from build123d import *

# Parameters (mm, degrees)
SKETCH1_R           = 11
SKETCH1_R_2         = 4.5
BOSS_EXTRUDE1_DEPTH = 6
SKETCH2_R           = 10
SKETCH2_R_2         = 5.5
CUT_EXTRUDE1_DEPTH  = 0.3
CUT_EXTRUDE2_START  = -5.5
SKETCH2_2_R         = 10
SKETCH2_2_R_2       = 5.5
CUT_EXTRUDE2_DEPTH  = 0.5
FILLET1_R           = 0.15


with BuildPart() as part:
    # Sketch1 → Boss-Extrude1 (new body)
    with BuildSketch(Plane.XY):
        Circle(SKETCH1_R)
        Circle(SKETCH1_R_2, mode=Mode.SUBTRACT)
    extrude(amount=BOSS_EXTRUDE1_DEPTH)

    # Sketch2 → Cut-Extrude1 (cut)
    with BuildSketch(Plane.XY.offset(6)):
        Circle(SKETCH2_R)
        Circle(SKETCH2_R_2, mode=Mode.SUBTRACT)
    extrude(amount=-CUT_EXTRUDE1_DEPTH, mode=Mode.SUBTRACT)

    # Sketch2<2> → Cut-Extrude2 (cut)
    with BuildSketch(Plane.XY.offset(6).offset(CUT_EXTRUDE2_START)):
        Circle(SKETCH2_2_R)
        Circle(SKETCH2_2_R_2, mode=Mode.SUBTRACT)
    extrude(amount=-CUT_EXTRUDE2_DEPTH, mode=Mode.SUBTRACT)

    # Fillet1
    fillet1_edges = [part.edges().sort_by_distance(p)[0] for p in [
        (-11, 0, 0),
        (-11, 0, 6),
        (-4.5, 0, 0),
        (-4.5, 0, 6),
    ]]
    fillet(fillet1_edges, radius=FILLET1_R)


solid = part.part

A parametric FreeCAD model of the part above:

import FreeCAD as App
import Part
import Sketcher
from FreeCAD import Vector


def edges_at(feature, points):
    """Names of the edges that pass closest to the given points."""
    edges = feature.Shape.Edges
    near = lambda p: min(range(len(edges)), key=lambda i: edges[i].distToShape(Part.Vertex(*p))[0])
    return sorted({f"Edge{near(p) + 1}" for p in points})

doc = App.newDocument("Part")
body = doc.addObject("PartDesign::Body", "Body")

sketch1 = body.newObject("Sketcher::SketchObject", "Sketch")
sketch1.AttachmentSupport = (doc.getObject("XY_Plane"), [""])
sketch1.MapMode = "FlatFace"
sketch1.addGeometry(Part.Circle(Vector(0, 0, 0), Vector(0, 0, 1), 11), False)
sketch1.addGeometry(Part.Circle(Vector(0, 0, 0), Vector(0, 0, 1), 4.5), False)
sketch1.addConstraint(Sketcher.Constraint("Coincident", 0, 3, -1, 1))
sketch1.addConstraint(Sketcher.Constraint("Coincident", 1, 3, -1, 1))
sketch1.addConstraint(Sketcher.Constraint("Diameter", 0, 22.0))
sketch1.addConstraint(Sketcher.Constraint("Diameter", 1, 9.0))
pad1 = body.newObject("PartDesign::Pad", "Pad")
pad1.Profile = sketch1
pad1.Length = 6

sketch2 = body.newObject("Sketcher::SketchObject", "Sketch001")
sketch2.AttachmentSupport = (doc.getObject("XY_Plane"), [""])
sketch2.MapMode = "FlatFace"
sketch2.AttachmentOffset = App.Placement(Vector(0, 0, 6), App.Rotation())
sketch2.addGeometry(Part.Circle(Vector(0, 0, 0), Vector(0, 0, 1), 10), False)
sketch2.addGeometry(Part.Circle(Vector(0, 0, 0), Vector(0, 0, 1), 5.5), False)
sketch2.addConstraint(Sketcher.Constraint("Coincident", 0, 3, -1, 1))
sketch2.addConstraint(Sketcher.Constraint("Coincident", 1, 3, -1, 1))
sketch2.addConstraint(Sketcher.Constraint("Diameter", 0, 20.0))
sketch2.addConstraint(Sketcher.Constraint("Diameter", 1, 11.0))
pocket1 = body.newObject("PartDesign::Pocket", "Pocket")
pocket1.Profile = sketch2
pocket1.Length = 0.3

sketch3 = body.newObject("Sketcher::SketchObject", "Sketch002")
sketch3.AttachmentSupport = (doc.getObject("XY_Plane"), [""])
sketch3.MapMode = "FlatFace"
sketch3.AttachmentOffset = App.Placement(Vector(0, 0, 0.5), App.Rotation())
sketch3.addGeometry(Part.Circle(Vector(0, 0, 0), Vector(0, 0, 1), 10), False)
sketch3.addGeometry(Part.Circle(Vector(0, 0, 0), Vector(0, 0, 1), 5.5), False)
sketch3.addConstraint(Sketcher.Constraint("Coincident", 0, 3, -1, 1))
sketch3.addConstraint(Sketcher.Constraint("Coincident", 1, 3, -1, 1))
sketch3.addConstraint(Sketcher.Constraint("Diameter", 0, 20.0))
sketch3.addConstraint(Sketcher.Constraint("Diameter", 1, 11.0))
pocket2 = body.newObject("PartDesign::Pocket", "Pocket001")
pocket2.Profile = sketch3
pocket2.Length = 0.5
doc.recompute()

fillet = body.newObject("PartDesign::Fillet", "Fillet")
fillet.Base = (pocket2, edges_at(pocket2, [
    (-11, 0, 0),
    (-11, 0, 6),
    (-4.5, 0, 0),
    (-4.5, 0, 6),
]))
fillet.Radius = 0.15

doc.recompute()
